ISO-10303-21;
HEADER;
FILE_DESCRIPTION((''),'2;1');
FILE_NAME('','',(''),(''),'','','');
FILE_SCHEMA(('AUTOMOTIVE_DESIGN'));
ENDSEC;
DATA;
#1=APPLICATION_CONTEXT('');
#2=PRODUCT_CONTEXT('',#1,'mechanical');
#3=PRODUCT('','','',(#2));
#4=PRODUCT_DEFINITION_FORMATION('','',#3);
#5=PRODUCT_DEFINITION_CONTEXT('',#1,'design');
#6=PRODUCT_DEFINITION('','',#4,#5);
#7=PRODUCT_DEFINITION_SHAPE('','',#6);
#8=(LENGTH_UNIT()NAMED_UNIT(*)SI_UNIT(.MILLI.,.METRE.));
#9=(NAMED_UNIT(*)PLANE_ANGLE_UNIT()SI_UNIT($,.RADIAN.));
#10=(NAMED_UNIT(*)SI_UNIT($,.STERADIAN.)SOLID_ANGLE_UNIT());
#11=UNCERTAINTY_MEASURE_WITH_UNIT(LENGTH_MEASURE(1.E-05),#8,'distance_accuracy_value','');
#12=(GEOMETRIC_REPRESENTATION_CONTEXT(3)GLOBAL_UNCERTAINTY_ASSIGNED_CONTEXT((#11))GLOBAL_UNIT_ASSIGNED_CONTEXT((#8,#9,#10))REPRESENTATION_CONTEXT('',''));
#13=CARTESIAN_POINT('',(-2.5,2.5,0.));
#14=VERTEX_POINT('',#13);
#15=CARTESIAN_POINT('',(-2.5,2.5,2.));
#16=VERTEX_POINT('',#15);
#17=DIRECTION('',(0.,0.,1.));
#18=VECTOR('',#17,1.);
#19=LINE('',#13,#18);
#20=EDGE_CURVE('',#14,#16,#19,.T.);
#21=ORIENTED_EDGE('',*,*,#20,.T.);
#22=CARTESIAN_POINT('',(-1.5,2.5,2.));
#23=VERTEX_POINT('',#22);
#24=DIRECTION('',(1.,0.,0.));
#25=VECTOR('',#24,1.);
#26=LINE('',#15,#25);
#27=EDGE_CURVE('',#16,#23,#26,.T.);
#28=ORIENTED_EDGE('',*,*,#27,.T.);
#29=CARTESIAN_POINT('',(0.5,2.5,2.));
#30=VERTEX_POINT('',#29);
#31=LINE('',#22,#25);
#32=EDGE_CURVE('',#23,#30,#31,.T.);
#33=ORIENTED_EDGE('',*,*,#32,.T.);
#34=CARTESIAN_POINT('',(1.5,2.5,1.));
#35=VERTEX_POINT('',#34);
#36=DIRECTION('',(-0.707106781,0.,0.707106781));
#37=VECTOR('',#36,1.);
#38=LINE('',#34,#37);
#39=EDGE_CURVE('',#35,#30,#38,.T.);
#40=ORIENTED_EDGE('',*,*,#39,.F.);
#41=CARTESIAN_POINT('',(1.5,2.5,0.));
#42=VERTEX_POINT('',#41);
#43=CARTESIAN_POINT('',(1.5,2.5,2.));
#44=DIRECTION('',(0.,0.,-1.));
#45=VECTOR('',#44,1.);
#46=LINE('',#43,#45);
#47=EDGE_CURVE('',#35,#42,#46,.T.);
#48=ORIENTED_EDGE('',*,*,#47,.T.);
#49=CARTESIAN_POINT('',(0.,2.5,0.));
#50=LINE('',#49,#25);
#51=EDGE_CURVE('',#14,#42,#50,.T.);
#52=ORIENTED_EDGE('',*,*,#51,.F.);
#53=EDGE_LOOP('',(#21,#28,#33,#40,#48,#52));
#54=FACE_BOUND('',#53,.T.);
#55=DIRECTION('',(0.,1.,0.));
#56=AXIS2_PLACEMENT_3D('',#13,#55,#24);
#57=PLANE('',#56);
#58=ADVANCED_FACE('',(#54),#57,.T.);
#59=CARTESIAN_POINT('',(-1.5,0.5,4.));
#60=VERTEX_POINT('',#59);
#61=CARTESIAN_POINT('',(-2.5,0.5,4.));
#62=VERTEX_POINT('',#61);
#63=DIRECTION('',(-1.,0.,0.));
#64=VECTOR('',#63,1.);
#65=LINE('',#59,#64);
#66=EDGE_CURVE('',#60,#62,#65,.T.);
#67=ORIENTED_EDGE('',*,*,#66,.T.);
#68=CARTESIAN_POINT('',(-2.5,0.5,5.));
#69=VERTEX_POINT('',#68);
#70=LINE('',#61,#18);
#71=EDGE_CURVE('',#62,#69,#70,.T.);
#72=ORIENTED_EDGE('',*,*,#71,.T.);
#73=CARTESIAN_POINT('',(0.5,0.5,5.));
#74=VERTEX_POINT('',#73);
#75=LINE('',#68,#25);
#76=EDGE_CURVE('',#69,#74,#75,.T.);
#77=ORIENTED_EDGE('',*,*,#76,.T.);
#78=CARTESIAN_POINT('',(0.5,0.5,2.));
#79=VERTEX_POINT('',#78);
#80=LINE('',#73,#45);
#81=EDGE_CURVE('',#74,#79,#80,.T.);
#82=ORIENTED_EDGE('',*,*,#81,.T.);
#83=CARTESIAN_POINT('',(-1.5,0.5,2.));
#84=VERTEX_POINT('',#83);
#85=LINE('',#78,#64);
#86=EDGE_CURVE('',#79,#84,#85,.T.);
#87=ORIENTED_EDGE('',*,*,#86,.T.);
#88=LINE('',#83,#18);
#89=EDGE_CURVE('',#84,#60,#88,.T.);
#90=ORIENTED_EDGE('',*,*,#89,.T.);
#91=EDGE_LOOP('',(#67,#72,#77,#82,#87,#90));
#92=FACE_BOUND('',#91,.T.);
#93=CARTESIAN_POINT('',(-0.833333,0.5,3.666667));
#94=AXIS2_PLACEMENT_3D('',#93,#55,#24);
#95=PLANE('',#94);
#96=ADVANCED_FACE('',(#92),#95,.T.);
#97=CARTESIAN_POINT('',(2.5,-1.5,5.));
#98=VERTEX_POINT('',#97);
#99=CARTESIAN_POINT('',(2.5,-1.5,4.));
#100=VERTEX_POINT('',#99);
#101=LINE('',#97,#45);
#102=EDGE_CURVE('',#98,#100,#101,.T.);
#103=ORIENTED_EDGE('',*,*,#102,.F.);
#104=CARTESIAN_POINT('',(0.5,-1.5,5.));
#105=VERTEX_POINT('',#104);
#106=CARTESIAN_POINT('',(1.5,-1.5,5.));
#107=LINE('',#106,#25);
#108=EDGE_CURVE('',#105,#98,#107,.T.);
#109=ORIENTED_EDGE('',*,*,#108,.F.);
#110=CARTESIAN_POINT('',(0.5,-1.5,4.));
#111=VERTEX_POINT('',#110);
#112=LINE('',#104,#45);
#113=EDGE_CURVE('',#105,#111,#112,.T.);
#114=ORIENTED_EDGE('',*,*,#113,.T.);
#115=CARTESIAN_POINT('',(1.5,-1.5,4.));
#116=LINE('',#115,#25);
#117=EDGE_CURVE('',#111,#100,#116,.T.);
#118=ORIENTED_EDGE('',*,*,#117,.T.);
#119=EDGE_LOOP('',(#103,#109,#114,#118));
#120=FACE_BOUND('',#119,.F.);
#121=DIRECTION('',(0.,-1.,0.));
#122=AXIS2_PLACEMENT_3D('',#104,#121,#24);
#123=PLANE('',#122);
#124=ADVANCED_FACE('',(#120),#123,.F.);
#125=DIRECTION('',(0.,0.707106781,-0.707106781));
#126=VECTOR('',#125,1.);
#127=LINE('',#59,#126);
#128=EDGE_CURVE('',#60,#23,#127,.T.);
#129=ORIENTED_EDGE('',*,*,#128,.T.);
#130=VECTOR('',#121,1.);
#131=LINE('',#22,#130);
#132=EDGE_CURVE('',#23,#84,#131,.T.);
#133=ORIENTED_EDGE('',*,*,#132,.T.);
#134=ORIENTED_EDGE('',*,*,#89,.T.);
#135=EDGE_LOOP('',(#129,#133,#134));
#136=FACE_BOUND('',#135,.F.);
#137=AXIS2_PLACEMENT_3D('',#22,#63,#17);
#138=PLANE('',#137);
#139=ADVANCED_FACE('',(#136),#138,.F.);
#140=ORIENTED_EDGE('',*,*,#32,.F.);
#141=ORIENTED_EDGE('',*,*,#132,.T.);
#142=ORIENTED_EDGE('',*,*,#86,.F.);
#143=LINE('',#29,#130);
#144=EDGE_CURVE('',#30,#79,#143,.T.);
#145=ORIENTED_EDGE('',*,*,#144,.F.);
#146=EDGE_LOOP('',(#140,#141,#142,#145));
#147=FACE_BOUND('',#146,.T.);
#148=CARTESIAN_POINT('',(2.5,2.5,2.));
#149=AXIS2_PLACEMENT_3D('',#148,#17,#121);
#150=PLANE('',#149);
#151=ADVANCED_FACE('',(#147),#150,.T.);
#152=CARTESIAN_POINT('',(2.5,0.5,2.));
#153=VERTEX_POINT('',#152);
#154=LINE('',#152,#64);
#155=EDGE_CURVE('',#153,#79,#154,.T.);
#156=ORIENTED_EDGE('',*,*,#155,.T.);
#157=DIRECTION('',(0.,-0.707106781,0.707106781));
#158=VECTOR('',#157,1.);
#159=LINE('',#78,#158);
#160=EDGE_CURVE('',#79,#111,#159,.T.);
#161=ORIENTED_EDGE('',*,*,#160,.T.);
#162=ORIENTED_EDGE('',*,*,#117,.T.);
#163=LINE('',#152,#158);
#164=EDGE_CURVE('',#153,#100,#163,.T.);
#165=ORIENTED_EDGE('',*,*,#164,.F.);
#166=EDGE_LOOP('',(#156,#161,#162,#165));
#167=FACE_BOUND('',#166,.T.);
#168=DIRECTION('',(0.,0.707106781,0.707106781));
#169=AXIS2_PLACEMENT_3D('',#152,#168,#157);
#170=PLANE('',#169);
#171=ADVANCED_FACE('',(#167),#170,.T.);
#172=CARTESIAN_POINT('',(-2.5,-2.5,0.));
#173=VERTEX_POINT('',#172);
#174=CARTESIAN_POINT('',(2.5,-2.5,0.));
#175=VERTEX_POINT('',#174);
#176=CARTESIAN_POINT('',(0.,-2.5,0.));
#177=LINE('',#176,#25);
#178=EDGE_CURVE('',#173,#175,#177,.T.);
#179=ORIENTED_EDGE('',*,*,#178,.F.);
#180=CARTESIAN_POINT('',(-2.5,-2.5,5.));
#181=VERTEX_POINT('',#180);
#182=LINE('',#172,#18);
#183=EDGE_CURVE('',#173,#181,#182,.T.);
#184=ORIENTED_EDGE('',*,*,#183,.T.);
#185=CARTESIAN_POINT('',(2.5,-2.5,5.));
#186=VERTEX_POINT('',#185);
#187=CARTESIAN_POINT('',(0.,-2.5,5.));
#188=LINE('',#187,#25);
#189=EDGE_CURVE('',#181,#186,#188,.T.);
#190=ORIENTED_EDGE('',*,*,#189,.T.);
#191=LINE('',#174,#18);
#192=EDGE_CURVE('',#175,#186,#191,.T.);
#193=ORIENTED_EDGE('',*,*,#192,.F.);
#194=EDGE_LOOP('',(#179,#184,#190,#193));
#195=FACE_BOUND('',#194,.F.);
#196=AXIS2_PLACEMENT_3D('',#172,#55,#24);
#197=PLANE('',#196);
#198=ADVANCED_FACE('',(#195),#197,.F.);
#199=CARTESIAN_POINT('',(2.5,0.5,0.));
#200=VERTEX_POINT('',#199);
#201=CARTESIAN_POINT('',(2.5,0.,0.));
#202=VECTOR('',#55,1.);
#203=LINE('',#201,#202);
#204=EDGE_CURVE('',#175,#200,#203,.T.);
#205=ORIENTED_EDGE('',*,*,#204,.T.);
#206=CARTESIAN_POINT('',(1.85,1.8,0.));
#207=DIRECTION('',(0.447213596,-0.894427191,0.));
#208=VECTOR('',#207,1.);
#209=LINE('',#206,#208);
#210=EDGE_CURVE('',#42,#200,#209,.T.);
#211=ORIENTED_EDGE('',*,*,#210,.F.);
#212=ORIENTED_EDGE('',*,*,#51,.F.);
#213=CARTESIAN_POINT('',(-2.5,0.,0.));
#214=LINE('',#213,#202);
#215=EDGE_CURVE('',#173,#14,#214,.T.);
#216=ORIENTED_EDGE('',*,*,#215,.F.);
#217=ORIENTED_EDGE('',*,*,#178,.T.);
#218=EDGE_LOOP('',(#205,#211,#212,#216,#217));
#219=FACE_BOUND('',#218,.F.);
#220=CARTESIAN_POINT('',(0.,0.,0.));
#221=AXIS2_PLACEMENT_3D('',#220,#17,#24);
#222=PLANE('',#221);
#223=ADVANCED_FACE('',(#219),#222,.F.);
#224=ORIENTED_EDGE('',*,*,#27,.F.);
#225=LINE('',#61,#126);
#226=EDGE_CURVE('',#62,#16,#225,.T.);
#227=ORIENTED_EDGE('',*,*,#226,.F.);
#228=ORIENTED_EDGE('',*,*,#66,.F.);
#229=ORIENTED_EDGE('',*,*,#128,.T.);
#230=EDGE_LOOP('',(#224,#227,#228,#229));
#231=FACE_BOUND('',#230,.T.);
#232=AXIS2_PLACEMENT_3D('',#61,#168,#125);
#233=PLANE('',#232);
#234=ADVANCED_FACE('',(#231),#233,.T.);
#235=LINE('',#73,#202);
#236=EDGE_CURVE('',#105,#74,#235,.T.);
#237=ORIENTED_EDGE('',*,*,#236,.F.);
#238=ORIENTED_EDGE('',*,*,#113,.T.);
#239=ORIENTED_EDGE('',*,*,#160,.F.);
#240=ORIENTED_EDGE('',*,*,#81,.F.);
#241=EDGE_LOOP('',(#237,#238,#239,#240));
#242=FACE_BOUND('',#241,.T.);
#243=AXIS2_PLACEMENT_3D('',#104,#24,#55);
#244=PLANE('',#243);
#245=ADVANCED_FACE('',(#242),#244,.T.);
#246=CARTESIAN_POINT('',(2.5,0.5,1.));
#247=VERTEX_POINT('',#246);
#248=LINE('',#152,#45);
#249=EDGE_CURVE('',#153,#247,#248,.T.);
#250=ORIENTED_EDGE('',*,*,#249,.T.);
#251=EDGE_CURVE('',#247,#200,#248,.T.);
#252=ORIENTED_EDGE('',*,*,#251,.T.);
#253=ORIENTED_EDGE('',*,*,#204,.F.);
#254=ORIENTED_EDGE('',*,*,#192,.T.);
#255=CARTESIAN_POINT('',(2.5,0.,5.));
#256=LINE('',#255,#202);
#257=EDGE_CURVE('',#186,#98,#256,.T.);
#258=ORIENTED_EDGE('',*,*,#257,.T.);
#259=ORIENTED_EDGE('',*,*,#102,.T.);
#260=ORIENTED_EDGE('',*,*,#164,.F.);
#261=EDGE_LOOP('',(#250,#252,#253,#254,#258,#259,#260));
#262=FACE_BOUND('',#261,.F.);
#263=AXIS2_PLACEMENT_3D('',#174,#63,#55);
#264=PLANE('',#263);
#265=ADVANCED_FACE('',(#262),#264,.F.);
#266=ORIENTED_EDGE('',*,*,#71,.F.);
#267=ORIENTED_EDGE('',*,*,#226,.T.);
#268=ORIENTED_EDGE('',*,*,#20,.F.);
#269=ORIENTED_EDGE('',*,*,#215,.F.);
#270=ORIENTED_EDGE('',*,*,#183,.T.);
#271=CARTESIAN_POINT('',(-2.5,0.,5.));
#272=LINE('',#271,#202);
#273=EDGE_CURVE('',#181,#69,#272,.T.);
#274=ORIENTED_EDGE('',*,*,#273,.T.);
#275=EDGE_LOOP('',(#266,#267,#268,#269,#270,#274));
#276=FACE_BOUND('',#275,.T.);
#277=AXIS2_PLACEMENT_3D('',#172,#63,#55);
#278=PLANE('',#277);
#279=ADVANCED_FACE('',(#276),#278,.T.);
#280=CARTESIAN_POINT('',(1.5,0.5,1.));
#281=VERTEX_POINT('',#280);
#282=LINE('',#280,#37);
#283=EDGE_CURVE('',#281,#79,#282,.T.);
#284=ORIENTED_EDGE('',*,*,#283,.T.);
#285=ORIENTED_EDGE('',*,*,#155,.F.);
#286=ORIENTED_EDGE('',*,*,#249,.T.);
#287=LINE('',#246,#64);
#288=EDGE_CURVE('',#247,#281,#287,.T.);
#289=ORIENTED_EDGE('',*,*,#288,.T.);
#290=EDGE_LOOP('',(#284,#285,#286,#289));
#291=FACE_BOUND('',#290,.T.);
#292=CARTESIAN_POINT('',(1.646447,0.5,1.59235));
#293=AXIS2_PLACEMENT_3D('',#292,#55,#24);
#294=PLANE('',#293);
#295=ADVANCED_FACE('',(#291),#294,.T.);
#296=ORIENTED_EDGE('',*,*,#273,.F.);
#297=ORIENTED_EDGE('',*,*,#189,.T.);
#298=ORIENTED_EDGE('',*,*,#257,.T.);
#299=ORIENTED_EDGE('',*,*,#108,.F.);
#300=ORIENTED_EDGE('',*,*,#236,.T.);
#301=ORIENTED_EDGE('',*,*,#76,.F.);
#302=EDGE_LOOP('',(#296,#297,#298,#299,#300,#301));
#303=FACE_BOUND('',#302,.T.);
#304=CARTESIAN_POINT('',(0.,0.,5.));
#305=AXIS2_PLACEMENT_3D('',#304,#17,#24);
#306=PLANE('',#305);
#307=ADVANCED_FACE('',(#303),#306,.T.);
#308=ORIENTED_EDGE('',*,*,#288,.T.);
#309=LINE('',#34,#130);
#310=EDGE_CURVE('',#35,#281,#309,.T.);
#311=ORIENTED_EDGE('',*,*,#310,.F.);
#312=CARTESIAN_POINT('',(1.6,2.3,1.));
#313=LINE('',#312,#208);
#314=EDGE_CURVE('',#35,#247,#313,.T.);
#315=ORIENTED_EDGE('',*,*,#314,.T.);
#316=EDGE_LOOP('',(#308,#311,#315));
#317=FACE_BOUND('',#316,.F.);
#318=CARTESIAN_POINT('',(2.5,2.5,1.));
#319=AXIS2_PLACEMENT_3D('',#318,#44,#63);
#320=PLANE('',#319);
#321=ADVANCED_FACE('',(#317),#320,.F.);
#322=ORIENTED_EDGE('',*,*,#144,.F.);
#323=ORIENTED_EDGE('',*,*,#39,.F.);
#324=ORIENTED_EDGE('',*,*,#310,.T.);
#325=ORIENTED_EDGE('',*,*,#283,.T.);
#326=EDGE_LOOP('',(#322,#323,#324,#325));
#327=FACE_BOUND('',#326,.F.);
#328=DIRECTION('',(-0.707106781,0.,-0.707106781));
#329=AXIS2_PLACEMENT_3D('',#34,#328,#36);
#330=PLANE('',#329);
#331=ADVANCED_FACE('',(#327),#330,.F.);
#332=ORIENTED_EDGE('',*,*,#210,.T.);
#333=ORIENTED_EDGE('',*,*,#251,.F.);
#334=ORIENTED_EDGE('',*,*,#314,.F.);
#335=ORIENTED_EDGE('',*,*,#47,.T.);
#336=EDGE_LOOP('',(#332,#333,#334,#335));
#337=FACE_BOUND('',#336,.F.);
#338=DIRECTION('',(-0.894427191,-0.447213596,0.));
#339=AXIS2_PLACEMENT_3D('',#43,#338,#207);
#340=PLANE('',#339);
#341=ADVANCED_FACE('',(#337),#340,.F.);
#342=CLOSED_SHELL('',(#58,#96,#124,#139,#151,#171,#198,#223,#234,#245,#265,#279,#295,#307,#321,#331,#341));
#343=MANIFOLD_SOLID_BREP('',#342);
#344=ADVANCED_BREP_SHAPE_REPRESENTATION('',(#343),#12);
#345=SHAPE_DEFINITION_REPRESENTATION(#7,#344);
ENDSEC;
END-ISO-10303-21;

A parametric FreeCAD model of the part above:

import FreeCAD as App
import Part
import Sketcher

doc = App.newDocument("Part")
body = doc.addObject("PartDesign::Body", "Body")

sketch1 = body.newObject("Sketcher::SketchObject", "Sketch")
sketch1.AttachmentSupport = (doc.getObject("XY_Plane"), [""])
sketch1.MapMode = "FlatFace"
sketch1.addGeometry(Part.LineSegment(App.Vector(-2, 2, 0), App.Vector(-2, -2, 0)), False)
sketch1.addGeometry(Part.LineSegment(App.Vector(-2, -2, 0), App.Vector(2, -2, 0)), False)
sketch1.addGeometry(Part.LineSegment(App.Vector(2, -2, 0), App.Vector(2, 2, 0)), False)
sketch1.addGeometry(Part.LineSegment(App.Vector(2, 2, 0), App.Vector(-2, 2, 0)), False)
sketch1.addConstraint(Sketcher.Constraint("Coincident", 0, 2, 1, 1))
sketch1.addConstraint(Sketcher.Constraint("Coincident", 1, 2, 2, 1))
sketch1.addConstraint(Sketcher.Constraint("Coincident", 2, 2, 3, 1))
sketch1.addConstraint(Sketcher.Constraint("Coincident", 3, 2, 0, 1))
sketch1.addConstraint(Sketcher.Constraint("Vertical", 0))
sketch1.addConstraint(Sketcher.Constraint("Horizontal", 1))
sketch1.addConstraint(Sketcher.Constraint("Vertical", 2))
sketch1.addConstraint(Sketcher.Constraint("Horizontal", 3))
sketch1.addConstraint(Sketcher.Constraint("Symmetric", 0, 2, 2, 2, -1, 1))
sketch1.addConstraint(Sketcher.Constraint("Equal", 3, 0))
sketch1.addConstraint(Sketcher.Constraint("DistanceX", 1, 1, 1, 2, 5.0))
pad1 = body.newObject("PartDesign::Pad", "Pad")
pad1.Profile = sketch1
pad1.Length = 5

sketch2 = body.newObject("Sketcher::SketchObject", "Sketch001")
sketch2.AttachmentSupport = (doc.getObject("XZ_Plane"), [""])
sketch2.MapMode = "FlatFace"
sketch2.AttachmentOffset = App.Placement(App.Vector(0, 0, -2.5), App.Rotation())
sketch2.addGeometry(Part.LineSegment(App.Vector(-2.5, 5, 0), App.Vector(0.5, 5, 0)), False)
sketch2.addGeometry(Part.LineSegment(App.Vector(0.5, 5, 0), App.Vector(0.5, 2, 0)), False)
sketch2.addGeometry(Part.LineSegment(App.Vector(0.5, 2, 0), App.Vector(-1.5, 2, 0)), False)
sketch2.addGeometry(Part.LineSegment(App.Vector(-1.5, 2, 0), App.Vector(-1.5, 4, 0)), False)
sketch2.addGeometry(Part.LineSegment(App.Vector(-1.5, 4, 0), App.Vector(-2.5, 4, 0)), False)
sketch2.addGeometry(Part.LineSegment(App.Vector(-2.5, 4, 0), App.Vector(-2.5, 5, 0)), False)
sketch2.addConstraint(Sketcher.Constraint("Coincident", 0, 2, 1, 1))
sketch2.addConstraint(Sketcher.Constraint("Coincident", 1, 2, 2, 1))
sketch2.addConstraint(Sketcher.Constraint("Coincident", 2, 2, 3, 1))
sketch2.addConstraint(Sketcher.Constraint("Coincident", 3, 2, 4, 1))
sketch2.addConstraint(Sketcher.Constraint("Coincident", 4, 2, 5, 1))
sketch2.addConstraint(Sketcher.Constraint("Coincident", 5, 2, 0, 1))
sketch2.addConstraint(Sketcher.Constraint("Horizontal", 0))
sketch2.addConstraint(Sketcher.Constraint("Vertical", 1))
sketch2.addConstraint(Sketcher.Constraint("Horizontal", 2))
sketch2.addConstraint(Sketcher.Constraint("Vertical", 3))
sketch2.addConstraint(Sketcher.Constraint("Horizontal", 4))
sketch2.addConstraint(Sketcher.Constraint("Vertical", 5))
sketch2.addConstraint(Sketcher.Constraint("Equal", 0, 1))
sketch2.addConstraint(Sketcher.Constraint("Equal", 2, 3))
sketch2.addConstraint(Sketcher.Constraint("DistanceX", 0, 1, 0, 2, 3.0))
sketch2.addConstraint(Sketcher.Constraint("DistanceX", 2, 2, 2, 1, 2.0))
sketch2.addConstraint(Sketcher.Constraint("DistanceY", -1, 1, 0, 2, 5.0))
sketch2.addConstraint(Sketcher.Constraint("DistanceX", -1, 1, 0, 2, 0.5))
pocket1 = body.newObject("PartDesign::Pocket", "Pocket")
pocket1.Profile = sketch2
pocket1.Length = 2
pocket1.Reversed = True

sketch3 = body.newObject("Sketcher::SketchObject", "Sketch002")
sketch3.AttachmentSupport = (doc.getObject("YZ_Plane"), [""])
sketch3.MapMode = "FlatFace"
sketch3.AttachmentOffset = App.Placement(App.Vector(0, 0, -2.5), App.Rotation())
sketch3.addGeometry(Part.LineSegment(App.Vector(2.5, 2, 0), App.Vector(0.5, 4, 0)), False)
sketch3.addGeometry(Part.LineSegment(App.Vector(0.5, 4, 0), App.Vector(2.5, 4, 0)), False)
sketch3.addGeometry(Part.LineSegment(App.Vector(2.5, 4, 0), App.Vector(2.5, 2, 0)), False)
sketch3.addConstraint(Sketcher.Constraint("Coincident", 0, 2, 1, 1))
sketch3.addConstraint(Sketcher.Constraint("Coincident", 1, 2, 2, 1))
sketch3.addConstraint(Sketcher.Constraint("Coincident", 2, 2, 0, 1))
sketch3.addConstraint(Sketcher.Constraint("Horizontal", 1))
sketch3.addConstraint(Sketcher.Constraint("Vertical", 2))
sketch3.addConstraint(Sketcher.Constraint("Equal", 1, 2))
sketch3.addConstraint(Sketcher.Constraint("DistanceX", 1, 1, 1, 2, 2.0))
sketch3.addConstraint(Sketcher.Constraint("DistanceY", -1, 1, 0, 2, 4.0))
sketch3.addConstraint(Sketcher.Constraint("DistanceX", -1, 1, 0, 2, 0.5))
pocket2 = body.newObject("PartDesign::Pocket", "Pocket001")
pocket2.Profile = sketch3
pocket2.Length = 1
pocket2.Reversed = True

sketch4 = body.newObject("Sketcher::SketchObject", "Sketch003")
sketch4.AttachmentSupport = (doc.getObject("XY_Plane"), [""])
sketch4.MapMode = "FlatFace"
sketch4.AttachmentOffset = App.Placement(App.Vector(0, 0, 5), App.Rotation())
sketch4.addGeometry(Part.LineSegment(App.Vector(0.5, 2.5, 0), App.Vector(0.5, -1.5, 0)), False)
sketch4.addGeometry(Part.LineSegment(App.Vector(0.5, -1.5, 0), App.Vector(2.5, -1.5, 0)), False)
sketch4.addGeometry(Part.LineSegment(App.Vector(2.5, -1.5, 0), App.Vector(2.5, 2.5, 0)), False)
sketch4.addGeometry(Part.LineSegment(App.Vector(2.5, 2.5, 0), App.Vector(0.5, 2.5, 0)), False)
sketch4.addConstraint(Sketcher.Constraint("Coincident", 0, 2, 1, 1))
sketch4.addConstraint(Sketcher.Constraint("Coincident", 1, 2, 2, 1))
sketch4.addConstraint(Sketcher.Constraint("Coincident", 2, 2, 3, 1))
sketch4.addConstraint(Sketcher.Constraint("Coincident", 3, 2, 0, 1))
sketch4.addConstraint(Sketcher.Constraint("Vertical", 0))
sketch4.addConstraint(Sketcher.Constraint("Horizontal", 1))
sketch4.addConstraint(Sketcher.Constraint("Vertical", 2))
sketch4.addConstraint(Sketcher.Constraint("Horizontal", 3))
sketch4.addConstraint(Sketcher.Constraint("DistanceX", 1, 1, 1, 2, 2.0))
sketch4.addConstraint(Sketcher.Constraint("DistanceY", 0, 2, 0, 1, 4.0))
sketch4.addConstraint(Sketcher.Constraint("DistanceX", -1, 1, 0, 2, 0.5))
sketch4.addConstraint(Sketcher.Constraint("DistanceY", 0, 2, -1, 1, 1.5))
pocket3 = body.newObject("PartDesign::Pocket", "Pocket002")
pocket3.Profile = sketch4
pocket3.Length = 1

sketch5 = body.newObject("Sketcher::SketchObject", "Sketch004")
sketch5.AttachmentSupport = (doc.getObject("YZ_Plane"), [""])
sketch5.MapMode = "FlatFace"
sketch5.AttachmentOffset = App.Placement(App.Vector(0, 0, 2.5), App.Rotation())
sketch5.addGeometry(Part.LineSegment(App.Vector(2.5, 2, 0), App.Vector(2.5, 4, 0)), False)
sketch5.addGeometry(Part.LineSegment(App.Vector(2.5, 4, 0), App.Vector(-1.5, 4, 0)), False)
sketch5.addGeometry(Part.LineSegment(App.Vector(-1.5, 4, 0), App.Vector(0.5, 2, 0)), False)
sketch5.addGeometry(Part.LineSegment(App.Vector(0.5, 2, 0), App.Vector(2.5, 2, 0)), False)
sketch5.addConstraint(Sketcher.Constraint("Coincident", 0, 2, 1, 1))
sketch5.addConstraint(Sketcher.Constraint("Coincident", 1, 2, 2, 1))
sketch5.addConstraint(Sketcher.Constraint("Coincident", 2, 2, 3, 1))
sketch5.addConstraint(Sketcher.Constraint("Coincident", 3, 2, 0, 1))
sketch5.addConstraint(Sketcher.Constraint("Vertical", 0))
sketch5.addConstraint(Sketcher.Constraint("Horizontal", 1))
sketch5.addConstraint(Sketcher.Constraint("Horizontal", 3))
sketch5.addConstraint(Sketcher.Constraint("Equal", 3, 0))
sketch5.addConstraint(Sketcher.Constraint("DistanceX", 1, 2, 1, 1, 4.0))
sketch5.addConstraint(Sketcher.Constraint("DistanceX", 3, 1, 3, 2, 2.0))
sketch5.addConstraint(Sketcher.Constraint("DistanceY", -1, 1, 0, 2, 4.0))
sketch5.addConstraint(Sketcher.Constraint("DistanceX", -1, 1, 0, 2, 2.5))
pocket4 = body.newObject("PartDesign::Pocket", "Pocket003")
pocket4.Profile = sketch5
pocket4.Length = 2

sketch6 = body.newObject("Sketcher::SketchObject", "Sketch005")
sketch6.AttachmentSupport = (doc.getObject("XY_Plane"), [""])
sketch6.MapMode = "FlatFace"
sketch6.AttachmentOffset = App.Placement(App.Vector(0, 0, 2), App.Rotation())
sketch6.addGeometry(Part.LineSegment(App.Vector(2.5, 2.5, 0), App.Vector(1.5, 2.5, 0)), False)
sketch6.addGeometry(Part.LineSegment(App.Vector(1.5, 2.5, 0), App.Vector(2.5, 0.5, 0)), False)
sketch6.addGeometry(Part.LineSegment(App.Vector(2.5, 0.5, 0), App.Vector(2.5, 2.5, 0)), False)
sketch6.addConstraint(Sketcher.Constraint("Coincident", 0, 2, 1, 1))
sketch6.addConstraint(Sketcher.Constraint("Coincident", 1, 2, 2, 1))
sketch6.addConstraint(Sketcher.Constraint("Coincident", 2, 2, 0, 1))
sketch6.addConstraint(Sketcher.Constraint("Horizontal", 0))
sketch6.addConstraint(Sketcher.Constraint("Vertical", 2))
sketch6.addConstraint(Sketcher.Constraint("DistanceX", 0, 2, 0, 1, 1.0))
sketch6.addConstraint(Sketcher.Constraint("DistanceY", 2, 1, 2, 2, 2.0))
sketch6.addConstraint(Sketcher.Constraint("DistanceX", -1, 1, 0, 2, 1.5))
sketch6.addConstraint(Sketcher.Constraint("DistanceY", -1, 1, 0, 2, 2.5))
pocket5 = body.newObject("PartDesign::Pocket", "Pocket004")
pocket5.Profile = sketch6
pocket5.Type = "ThroughAll"

sketch7 = body.newObject("Sketcher::SketchObject", "Sketch006")
sketch7.AttachmentSupport = (doc.getObject("XZ_Plane"), [""])
sketch7.MapMode = "FlatFace"
sketch7.AttachmentOffset = App.Placement(App.Vector(0, 0, -2.5), App.Rotation())
sketch7.addGeometry(Part.LineSegment(App.Vector(2.5, 2, 0), App.Vector(2.5, 1, 0)), False)
sketch7.addGeometry(Part.LineSegment(App.Vector(2.5, 1, 0), App.Vector(1.5, 1, 0)), False)
sketch7.addGeometry(Part.LineSegment(App.Vector(1.5, 1, 0), App.Vector(0.5, 2, 0)), False)
sketch7.addGeometry(Part.LineSegment(App.Vector(0.5, 2, 0), App.Vector(2.5, 2, 0)), False)
sketch7.addConstraint(Sketcher.Constraint("Coincident", 0, 2, 1, 1))
sketch7.addConstraint(Sketcher.Constraint("Coincident", 1, 2, 2, 1))
sketch7.addConstraint(Sketcher.Constraint("Coincident", 2, 2, 3, 1))
sketch7.addConstraint(Sketcher.Constraint("Coincident", 3, 2, 0, 1))
sketch7.addConstraint(Sketcher.Constraint("Vertical", 0))
sketch7.addConstraint(Sketcher.Constraint("Horizontal", 1))
sketch7.addConstraint(Sketcher.Constraint("Horizontal", 3))
sketch7.addConstraint(Sketcher.Constraint("Equal", 1, 0))
sketch7.addConstraint(Sketcher.Constraint("DistanceX", 1, 2, 1, 1, 1.0))
sketch7.addConstraint(Sketcher.Constraint("DistanceX", 3, 1, 3, 2, 2.0))
sketch7.addConstraint(Sketcher.Constraint("DistanceY", -1, 1, 0, 2, 1.0))
sketch7.addConstraint(Sketcher.Constraint("DistanceX", -1, 1, 0, 2, 2.5))
pocket6 = body.newObject("PartDesign::Pocket", "Pocket005")
pocket6.Profile = sketch7
pocket6.Length = 2
pocket6.Reversed = True

doc.recompute()
